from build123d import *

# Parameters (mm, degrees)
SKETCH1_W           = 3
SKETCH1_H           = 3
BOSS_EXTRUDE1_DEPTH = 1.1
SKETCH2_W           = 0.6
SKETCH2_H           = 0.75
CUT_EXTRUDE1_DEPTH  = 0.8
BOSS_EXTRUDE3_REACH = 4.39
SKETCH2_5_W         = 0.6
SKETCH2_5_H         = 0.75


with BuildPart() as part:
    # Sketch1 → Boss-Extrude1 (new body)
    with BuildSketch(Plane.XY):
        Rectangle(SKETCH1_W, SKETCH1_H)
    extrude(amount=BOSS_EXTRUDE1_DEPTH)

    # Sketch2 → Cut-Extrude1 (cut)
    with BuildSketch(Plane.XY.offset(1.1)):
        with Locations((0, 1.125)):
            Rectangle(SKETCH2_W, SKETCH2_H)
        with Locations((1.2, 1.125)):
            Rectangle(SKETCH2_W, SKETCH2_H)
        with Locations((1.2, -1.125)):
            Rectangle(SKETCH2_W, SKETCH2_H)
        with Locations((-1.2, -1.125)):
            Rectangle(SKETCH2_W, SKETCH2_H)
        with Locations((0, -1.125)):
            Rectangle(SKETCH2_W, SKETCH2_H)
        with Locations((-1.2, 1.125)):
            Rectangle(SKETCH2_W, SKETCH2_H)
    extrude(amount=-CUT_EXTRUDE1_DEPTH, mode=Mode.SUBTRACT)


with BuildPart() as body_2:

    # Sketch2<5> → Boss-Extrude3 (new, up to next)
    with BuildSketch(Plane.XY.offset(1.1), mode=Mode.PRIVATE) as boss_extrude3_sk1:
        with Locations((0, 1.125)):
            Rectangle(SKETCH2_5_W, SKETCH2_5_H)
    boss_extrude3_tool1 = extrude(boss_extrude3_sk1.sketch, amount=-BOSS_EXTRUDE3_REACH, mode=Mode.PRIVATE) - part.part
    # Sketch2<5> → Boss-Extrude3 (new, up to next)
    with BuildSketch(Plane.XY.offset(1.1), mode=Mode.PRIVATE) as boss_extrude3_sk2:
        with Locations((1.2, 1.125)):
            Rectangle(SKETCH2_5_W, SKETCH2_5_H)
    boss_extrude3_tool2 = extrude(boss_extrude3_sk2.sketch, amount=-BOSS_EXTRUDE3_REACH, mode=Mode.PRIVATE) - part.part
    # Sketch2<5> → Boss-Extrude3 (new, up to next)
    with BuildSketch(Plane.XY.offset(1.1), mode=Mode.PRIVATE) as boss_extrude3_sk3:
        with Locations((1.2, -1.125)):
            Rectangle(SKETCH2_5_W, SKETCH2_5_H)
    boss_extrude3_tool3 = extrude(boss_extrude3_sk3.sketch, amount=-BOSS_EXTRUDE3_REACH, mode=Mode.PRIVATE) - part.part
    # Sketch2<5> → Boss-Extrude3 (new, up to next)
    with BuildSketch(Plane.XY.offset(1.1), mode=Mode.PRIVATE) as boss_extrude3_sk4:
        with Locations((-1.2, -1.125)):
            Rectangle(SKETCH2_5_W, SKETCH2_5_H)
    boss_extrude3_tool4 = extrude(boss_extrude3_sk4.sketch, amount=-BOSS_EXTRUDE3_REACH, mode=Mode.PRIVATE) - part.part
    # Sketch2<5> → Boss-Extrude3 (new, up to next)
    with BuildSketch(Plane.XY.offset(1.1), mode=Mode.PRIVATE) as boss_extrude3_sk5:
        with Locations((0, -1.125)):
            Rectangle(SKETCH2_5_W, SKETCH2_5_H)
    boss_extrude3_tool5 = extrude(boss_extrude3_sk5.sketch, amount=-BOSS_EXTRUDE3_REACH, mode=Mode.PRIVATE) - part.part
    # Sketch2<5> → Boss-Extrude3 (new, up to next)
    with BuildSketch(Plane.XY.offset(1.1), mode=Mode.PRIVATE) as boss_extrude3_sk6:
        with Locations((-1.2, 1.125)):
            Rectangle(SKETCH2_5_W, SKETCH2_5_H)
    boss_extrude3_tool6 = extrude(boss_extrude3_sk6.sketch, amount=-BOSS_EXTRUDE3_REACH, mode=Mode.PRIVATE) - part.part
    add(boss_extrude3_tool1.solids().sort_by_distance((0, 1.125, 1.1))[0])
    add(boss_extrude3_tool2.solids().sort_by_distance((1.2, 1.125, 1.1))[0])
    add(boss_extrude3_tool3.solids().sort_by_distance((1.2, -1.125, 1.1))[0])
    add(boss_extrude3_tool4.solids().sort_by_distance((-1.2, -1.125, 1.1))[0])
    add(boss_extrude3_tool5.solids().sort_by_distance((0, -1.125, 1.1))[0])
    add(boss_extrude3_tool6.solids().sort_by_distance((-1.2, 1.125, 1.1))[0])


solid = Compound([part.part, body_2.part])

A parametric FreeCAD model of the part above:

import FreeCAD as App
import Part
import Sketcher

V = App.Vector

doc = App.newDocument("Part")
body = doc.addObject("PartDesign::Body", "Body")

# Sketch on XY plane
sketch1 = body.newObject("Sketcher::SketchObject", "Sketch")
sketch1.AttachmentSupport = (doc.getObject("XY_Plane"), [""])
sketch1.MapMode = "FlatFace"
sketch1.addGeometry(Part.LineSegment(V(-1.5, 1.5, 0), V(-1.5, -1.5, 0)), False)
sketch1.addGeometry(Part.LineSegment(V(-1.5, -1.5, 0), V(1.5, -1.5, 0)), False)
sketch1.addGeometry(Part.LineSegment(V(1.5, -1.5, 0), V(1.5, 1.5, 0)), False)
sketch1.addGeometry(Part.LineSegment(V(1.5, 1.5, 0), V(-1.5, 1.5, 0)), False)
sketch1.addConstraint(Sketcher.Constraint("Coincident", 0, 2, 1, 1))
sketch1.addConstraint(Sketcher.Constraint("Coincident", 1, 2, 2, 1))
sketch1.addConstraint(Sketcher.Constraint("Coincident", 2, 2, 3, 1))
sketch1.addConstraint(Sketcher.Constraint("Coincident", 3, 2, 0, 1))
sketch1.addConstraint(Sketcher.Constraint("Vertical", 0))
sketch1.addConstraint(Sketcher.Constraint("Horizontal", 1))
sketch1.addConstraint(Sketcher.Constraint("Vertical", 2))
sketch1.addConstraint(Sketcher.Constraint("Horizontal", 3))
sketch1.addConstraint(Sketcher.Constraint("Symmetric", 0, 2, 2, 2, -1, 1))
sketch1.addConstraint(Sketcher.Constraint("Equal", 3, 0))
sketch1.addConstraint(Sketcher.Constraint("DistanceX", 1, 1, 1, 2, 3.0))
pad1 = body.newObject("PartDesign::Pad", "Pad")
pad1.Profile = sketch1
pad1.Length = 1.1

# Sketch on XY plane
sketch2 = body.newObject("Sketcher::SketchObject", "Sketch001")
sketch2.AttachmentSupport = (doc.getObject("XY_Plane"), [""])
sketch2.MapMode = "FlatFace"
sketch2.AttachmentOffset = App.Placement(V(0, 0, 1.1), App.Rotation())
sketch2.addGeometry(Part.LineSegment(V(-0.3, 1.5, 0), V(-0.3, 0.8, 0)), False)
sketch2.addGeometry(Part.LineSegment(V(-0.3, 0.8, 0), V(0.3, 0.8, 0)), False)
sketch2.addGeometry(Part.LineSegment(V(0.3, 0.8, 0), V(0.3, 1.5, 0)), False)
sketch2.addGeometry(Part.LineSegment(V(0.3, 1.5, 0), V(-0.3, 1.5, 0)), False)
sketch2.addGeometry(Part.LineSegment(V(0.9, 1.5, 0), V(0.9, 0.8, 0)), False)
sketch2.addGeometry(Part.LineSegment(V(0.9, 0.8, 0), V(1.5, 0.8, 0)), False)
sketch2.addGeometry(Part.LineSegment(V(1.5, 0.8, 0), V(1.5, 1.5, 0)), False)
sketch2.addGeometry(Part.LineSegment(V(1.5, 1.5, 0), V(0.9, 1.5, 0)), False)
sketch2.addGeometry(Part.LineSegment(V(0.9, -0.8, 0), V(0.9, -1.5, 0)), False)
sketch2.addGeometry(Part.LineSegment(V(0.9, -1.5, 0), V(1.5, -1.5, 0)), False)
sketch2.addGeometry(Part.LineSegment(V(1.5, -1.5, 0), V(1.5, -0.8, 0)), False)
sketch2.addGeometry(Part.LineSegment(V(1.5, -0.8, 0), V(0.9, -0.8, 0)), False)
sketch2.addGeometry(Part.LineSegment(V(-1.5, -0.8, 0), V(-1.5, -1.5, 0)), False)
sketch2.addGeometry(Part.LineSegment(V(-1.5, -1.5, 0), V(-0.9, -1.5, 0)), False)
sketch2.addGeometry(Part.LineSegment(V(-0.9, -1.5, 0), V(-0.9, -0.8, 0)), False)
sketch2.addGeometry(Part.LineSegment(V(-0.9, -0.8, 0), V(-1.5, -0.8, 0)), False)
sketch2.addGeometry(Part.LineSegment(V(-0.3, -0.8, 0), V(-0.3, -1.5, 0)), False)
sketch2.addGeometry(Part.LineSegment(V(-0.3, -1.5, 0), V(0.3, -1.5, 0)), False)
sketch2.addGeometry(Part.LineSegment(V(0.3, -1.5, 0), V(0.3, -0.8, 0)), False)
sketch2.addGeometry(Part.LineSegment(V(0.3, -0.8, 0), V(-0.3, -0.8, 0)), False)
sketch2.addGeometry(Part.LineSegment(V(-1.5, 1.5, 0), V(-1.5, 0.8, 0)), False)
sketch2.addGeometry(Part.LineSegment(V(-1.5, 0.8, 0), V(-0.9, 0.8, 0)), False)
sketch2.addGeometry(Part.LineSegment(V(-0.9, 0.8, 0), V(-0.9, 1.5, 0)), False)
sketch2.addGeometry(Part.LineSegment(V(-0.9, 1.5, 0), V(-1.5, 1.5, 0)), False)
sketch2.addConstraint(Sketcher.Constraint("Coincident", 0, 2, 1, 1))
sketch2.addConstraint(Sketcher.Constraint("Coincident", 1, 2, 2, 1))
sketch2.addConstraint(Sketcher.Constraint("Coincident", 2, 2, 3, 1))
sketch2.addConstraint(Sketcher.Constraint("Coincident", 3, 2, 0, 1))
sketch2.addConstraint(Sketcher.Constraint("Coincident", 4, 2, 5, 1))
sketch2.addConstraint(Sketcher.Constraint("Coincident", 5, 2, 6, 1))
sketch2.addConstraint(Sketcher.Constraint("Coincident", 6, 2, 7, 1))
sketch2.addConstraint(Sketcher.Constraint("Coincident", 7, 2, 4, 1))
sketch2.addConstraint(Sketcher.Constraint("Coincident", 8, 2, 9, 1))
sketch2.addConstraint(Sketcher.Constraint("Coincident", 9, 2, 10, 1))
sketch2.addConstraint(Sketcher.Constraint("Coincident", 10, 2, 11, 1))
sketch2.addConstraint(Sketcher.Constraint("Coincident", 11, 2, 8, 1))
sketch2.addConstraint(Sketcher.Constraint("Coincident", 12, 2, 13, 1))
sketch2.addConstraint(Sketcher.Constraint("Coincident", 13, 2, 14, 1))
sketch2.addConstraint(Sketcher.Constraint("Coincident", 14, 2, 15, 1))
sketch2.addConstraint(Sketcher.Constraint("Coincident", 15, 2, 12, 1))
sketch2.addConstraint(Sketcher.Constraint("Coincident", 16, 2, 17, 1))
sketch2.addConstraint(Sketcher.Constraint("Coincident", 17, 2, 18, 1))
sketch2.addConstraint(Sketcher.Constraint("Coincident", 18, 2, 19, 1))
sketch2.addConstraint(Sketcher.Constraint("Coincident", 19, 2, 16, 1))
sketch2.addConstraint(Sketcher.Constraint("Coincident", 20, 2, 21, 1))
sketch2.addConstraint(Sketcher.Constraint("Coincident", 21, 2, 22, 1))
sketch2.addConstraint(Sketcher.Constraint("Coincident", 22, 2, 23, 1))
sketch2.addConstraint(Sketcher.Constraint("Coincident", 23, 2, 20, 1))
sketch2.addConstraint(Sketcher.Constraint("Vertical", 0))
sketch2.addConstraint(Sketcher.Constraint("Horizontal", 1))
sketch2.addConstraint(Sketcher.Constraint("Vertical", 2))
sketch2.addConstraint(Sketcher.Constraint("Horizontal", 3))
sketch2.addConstraint(Sketcher.Constraint("Vertical", 4))
sketch2.addConstraint(Sketcher.Constraint("Horizontal", 5))
sketch2.addConstraint(Sketcher.Constraint("Vertical", 6))
sketch2.addConstraint(Sketcher.Constraint("Horizontal", 7))
sketch2.addConstraint(Sketcher.Constraint("Vertical", 8))
sketch2.addConstraint(Sketcher.Constraint("Horizontal", 9))
sketch2.addConstraint(Sketcher.Constraint("Vertical", 10))
sketch2.addConstraint(Sketcher.Constraint("Horizontal", 11))
sketch2.addConstraint(Sketcher.Constraint("Vertical", 12))
sketch2.addConstraint(Sketcher.Constraint("Horizontal", 13))
sketch2.addConstraint(Sketcher.Constraint("Vertical", 14))
sketch2.addConstraint(Sketcher.Constraint("Horizontal", 15))
sketch2.addConstraint(Sketcher.Constraint("Vertical", 16))
sketch2.addConstraint(Sketcher.Constraint("Horizontal", 17))
sketch2.addConstraint(Sketcher.Constraint("Vertical", 18))
sketch2.addConstraint(Sketcher.Constraint("Horizontal", 19))
sketch2.addConstraint(Sketcher.Constraint("Vertical", 20))
sketch2.addConstraint(Sketcher.Constraint("Horizontal", 21))
sketch2.addConstraint(Sketcher.Constraint("Vertical", 22))
sketch2.addConstraint(Sketcher.Constraint("Horizontal", 23))
sketch2.addConstraint(Sketcher.Constraint("Symmetric", 6, 2, 12, 2, -1, 1))
sketch2.addConstraint(Sketcher.Constraint("Symmetric", 4, 2, 14, 2, -1, 1))
sketch2.addConstraint(Sketcher.Constraint("Symmetric", 2, 2, 16, 2, -1, 1))
sketch2.addConstraint(Sketcher.Constraint("Symmetric", 0, 2, 18, 2, -1, 1))
sketch2.addConstraint(Sketcher.Constraint("Symmetric", 10, 2, 20, 2, -1, 1))
sketch2.addConstraint(Sketcher.Constraint("Symmetric", 8, 2, 22, 2, -1, 1))
sketch2.addConstraint(Sketcher.Constraint("Symmetric", 9, 2, 12, 2, -2))
sketch2.addConstraint(Sketcher.Constraint("Symmetric", 11, 2, 14, 2, -2))
sketch2.addConstraint(Sketcher.Constraint("Horizontal", 1, 2, 4, 2))
sketch2.addConstraint(Sketcher.Constraint("Horizontal", 3, 2, 6, 2))
sketch2.addConstraint(Sketcher.Constraint("Vertical", 3, 2, 16, 2))
sketch2.addConstraint(Sketcher.Constraint("Equal", 3, 5))
sketch2.addConstraint(Sketcher.Constraint("DistanceX", 1, 1, 1, 2, 0.6))
sketch2.addConstraint(Sketcher.Constraint("DistanceY", 8, 2, 7, 2, 3.0))
sketch2.addConstraint(Sketcher.Constraint("DistanceX", 12, 2, 9, 2, 3.0))
sketch2.addConstraint(Sketcher.Constraint("DistanceY", 0, 2, 0, 1, 0.75))
pocket1 = body.newObject("PartDesign::Pocket", "Pocket")
pocket1.Profile = sketch2
pocket1.Length = 0.8
body2 = doc.addObject("PartDesign::Body", "Body001")
body2.AllowCompound = True

# Sketch on XY plane
sketch3 = body2.newObject("Sketcher::SketchObject", "Sketch002")
sketch3.AttachmentSupport = (doc.getObject("XY_Plane001"), [""])
sketch3.MapMode = "FlatFace"
sketch3.AttachmentOffset = App.Placement(V(0, 0, 1.1), App.Rotation())
sketch3.addGeometry(Part.LineSegment(V(-0.3, 1.5, 0), V(-0.3, 0.8, 0)), False)
sketch3.addGeometry(Part.LineSegment(V(-0.3, 0.8, 0), V(0.3, 0.8, 0)), False)
sketch3.addGeometry(Part.LineSegment(V(0.3, 0.8, 0), V(0.3, 1.5, 0)), False)
sketch3.addGeometry(Part.LineSegment(V(0.3, 1.5, 0), V(-0.3, 1.5, 0)), False)
sketch3.addConstraint(Sketcher.Constraint("Coincident", 0, 2, 1, 1))
sketch3.addConstraint(Sketcher.Constraint("Coincident", 1, 2, 2, 1))
sketch3.addConstraint(Sketcher.Constraint("Coincident", 2, 2, 3, 1))
sketch3.addConstraint(Sketcher.Constraint("Coincident", 3, 2, 0, 1))
sketch3.addConstraint(Sketcher.Constraint("Vertical", 0))
sketch3.addConstraint(Sketcher.Constraint("Horizontal", 1))
sketch3.addConstraint(Sketcher.Constraint("Vertical", 2))
sketch3.addConstraint(Sketcher.Constraint("Horizontal", 3))
sketch3.addConstraint(Sketcher.Constraint("DistanceX", 1, 1, 1, 2, 0.6))
sketch3.addConstraint(Sketcher.Constraint("DistanceY", 0, 2, 0, 1, 0.75))
sketch3.addConstraint(Sketcher.Constraint("DistanceX", 0, 2, -1, 1, 0.3))
sketch3.addConstraint(Sketcher.Constraint("DistanceY", -1, 1, 2, 2, 1.5))
pad2 = body2.newObject("PartDesign::Pad", "Pad001")
pad2.Profile = sketch3
pad2.Length = 0.8
pad2.Reversed = True

# Sketch on XY plane
sketch4 = body2.newObject("Sketcher::SketchObject", "Sketch003")
sketch4.AttachmentSupport = (doc.getObject("XY_Plane001"), [""])
sketch4.MapMode = "FlatFace"
sketch4.AttachmentOffset = App.Placement(V(0, 0, 1.1), App.Rotation())
sketch4.addGeometry(Part.LineSegment(V(0.9, 1.5, 0), V(0.9, 0.8, 0)), False)
sketch4.addGeometry(Part.LineSegment(V(0.9, 0.8, 0), V(1.5, 0.8, 0)), False)
sketch4.addGeometry(Part.LineSegment(V(1.5, 0.8, 0), V(1.5, 1.5, 0)), False)
sketch4.addGeometry(Part.LineSegment(V(1.5, 1.5, 0), V(0.9, 1.5, 0)), False)
sketch4.addConstraint(Sketcher.Constraint("Coincident", 0, 2, 1, 1))
sketch4.addConstraint(Sketcher.Constraint("Coincident", 1, 2, 2, 1))
sketch4.addConstraint(Sketcher.Constraint("Coincident", 2, 2, 3, 1))
sketch4.addConstraint(Sketcher.Constraint("Coincident", 3, 2, 0, 1))
sketch4.addConstraint(Sketcher.Constraint("Vertical", 0))
sketch4.addConstraint(Sketcher.Constraint("Horizontal", 1))
sketch4.addConstraint(Sketcher.Constraint("Vertical", 2))
sketch4.addConstraint(Sketcher.Constraint("Horizontal", 3))
sketch4.addConstraint(Sketcher.Constraint("DistanceX", 1, 1, 1, 2, 0.6))
sketch4.addConstraint(Sketcher.Constraint("DistanceY", 0, 2, 0, 1, 0.75))
sketch4.addConstraint(Sketcher.Constraint("DistanceX", -1, 1, 0, 2, 0.9))
sketch4.addConstraint(Sketcher.Constraint("DistanceY", -1, 1, 2, 2, 1.5))
pad3 = body2.newObject("PartDesign::Pad", "Pad002")
pad3.Profile = sketch4
pad3.Length = 0.8
pad3.Reversed = True

# Sketch on XY plane
sketch5 = body2.newObject("Sketcher::SketchObject", "Sketch004")
sketch5.AttachmentSupport = (doc.getObject("XY_Plane001"), [""])
sketch5.MapMode = "FlatFace"
sketch5.AttachmentOffset = App.Placement(V(0, 0, 1.1), App.Rotation())
sketch5.addGeometry(Part.LineSegment(V(0.9, -0.8, 0), V(0.9, -1.5, 0)), False)
sketch5.addGeometry(Part.LineSegment(V(0.9, -1.5, 0), V(1.5, -1.5, 0)), False)
sketch5.addGeometry(Part.LineSegment(V(1.5, -1.5, 0), V(1.5, -0.8, 0)), False)
sketch5.addGeometry(Part.LineSegment(V(1.5, -0.8, 0), V(0.9, -0.8, 0)), False)
sketch5.addConstraint(Sketcher.Constraint("Coincident", 0, 2, 1, 1))
sketch5.addConstraint(Sketcher.Constraint("Coincident", 1, 2, 2, 1))
sketch5.addConstraint(Sketcher.Constraint("Coincident", 2, 2, 3, 1))
sketch5.addConstraint(Sketcher.Constraint("Coincident", 3, 2, 0, 1))
sketch5.addConstraint(Sketcher.Constraint("Vertical", 0))
sketch5.addConstraint(Sketcher.Constraint("Horizontal", 1))
sketch5.addConstraint(Sketcher.Constraint("Vertical", 2))
sketch5.addConstraint(Sketcher.Constraint("Horizontal", 3))
sketch5.addConstraint(Sketcher.Constraint("DistanceX", 1, 1, 1, 2, 0.6))
sketch5.addConstraint(Sketcher.Constraint("DistanceY", 0, 2, 0, 1, 0.75))
sketch5.addConstraint(Sketcher.Constraint("DistanceX", -1, 1, 0, 2, 0.9))
sketch5.addConstraint(Sketcher.Constraint("DistanceY", 0, 2, -1, 1, 1.5))
pad4 = body2.newObject("PartDesign::Pad", "Pad003")
pad4.Profile = sketch5
pad4.Length = 0.8
pad4.Reversed = True

# Sketch on XY plane
sketch6 = body2.newObject("Sketcher::SketchObject", "Sketch005")
sketch6.AttachmentSupport = (doc.getObject("XY_Plane001"), [""])
sketch6.MapMode = "FlatFace"
sketch6.AttachmentOffset = App.Placement(V(0, 0, 1.1), App.Rotation())
sketch6.addGeometry(Part.LineSegment(V(-1.5, -0.8, 0), V(-1.5, -1.5, 0)), False)
sketch6.addGeometry(Part.LineSegment(V(-1.5, -1.5, 0), V(-0.9, -1.5, 0)), False)
sketch6.addGeometry(Part.LineSegment(V(-0.9, -1.5, 0), V(-0.9, -0.8, 0)), False)
sketch6.addGeometry(Part.LineSegment(V(-0.9, -0.8, 0), V(-1.5, -0.8, 0)), False)
sketch6.addConstraint(Sketcher.Constraint("Coincident", 0, 2, 1, 1))
sketch6.addConstraint(Sketcher.Constraint("Coincident", 1, 2, 2, 1))
sketch6.addConstraint(Sketcher.Constraint("Coincident", 2, 2, 3, 1))
sketch6.addConstraint(Sketcher.Constraint("Coincident", 3, 2, 0, 1))
sketch6.addConstraint(Sketcher.Constraint("Vertical", 0))
sketch6.addConstraint(Sketcher.Constraint("Horizontal", 1))
sketch6.addConstraint(Sketcher.Constraint("Vertical", 2))
sketch6.addConstraint(Sketcher.Constraint("Horizontal", 3))
sketch6.addConstraint(Sketcher.Constraint("DistanceX", 1, 1, 1, 2, 0.6))
sketch6.addConstraint(Sketcher.Constraint("DistanceY", 0, 2, 0, 1, 0.75))
sketch6.addConstraint(Sketcher.Constraint("DistanceX", 0, 2, -1, 1, 1.5))
sketch6.addConstraint(Sketcher.Constraint("DistanceY", 0, 2, -1, 1, 1.5))
pad5 = body2.newObject("PartDesign::Pad", "Pad004")
pad5.Profile = sketch6
pad5.Length = 0.8
pad5.Reversed = True

# Sketch on XY plane
sketch7 = body2.newObject("Sketcher::SketchObject", "Sketch006")
sketch7.AttachmentSupport = (doc.getObject("XY_Plane001"), [""])
sketch7.MapMode = "FlatFace"
sketch7.AttachmentOffset = App.Placement(V(0, 0, 1.1), App.Rotation())
sketch7.addGeometry(Part.LineSegment(V(-0.3, -0.8, 0), V(-0.3, -1.5, 0)), False)
sketch7.addGeometry(Part.LineSegment(V(-0.3, -1.5, 0), V(0.3, -1.5, 0)), False)
sketch7.addGeometry(Part.LineSegment(V(0.3, -1.5, 0), V(0.3, -0.8, 0)), False)
sketch7.addGeometry(Part.LineSegment(V(0.3, -0.8, 0), V(-0.3, -0.8, 0)), False)
sketch7.addConstraint(Sketcher.Constraint("Coincident", 0, 2, 1, 1))
sketch7.addConstraint(Sketcher.Constraint("Coincident", 1, 2, 2, 1))
sketch7.addConstraint(Sketcher.Constraint("Coincident", 2, 2, 3, 1))
sketch7.addConstraint(Sketcher.Constraint("Coincident", 3, 2, 0, 1))
sketch7.addConstraint(Sketcher.Constraint("Vertical", 0))
sketch7.addConstraint(Sketcher.Constraint("Horizontal", 1))
sketch7.addConstraint(Sketcher.Constraint("Vertical", 2))
sketch7.addConstraint(Sketcher.Constraint("Horizontal", 3))
sketch7.addConstraint(Sketcher.Constraint("DistanceX", 1, 1, 1, 2, 0.6))
sketch7.addConstraint(Sketcher.Constraint("DistanceY", 0, 2, 0, 1, 0.75))
sketch7.addConstraint(Sketcher.Constraint("DistanceX", 0, 2, -1, 1, 0.3))
sketch7.addConstraint(Sketcher.Constraint("DistanceY", 0, 2, -1, 1, 1.5))
pad6 = body2.newObject("PartDesign::Pad", "Pad005")
pad6.Profile = sketch7
pad6.Length = 0.8
pad6.Reversed = True

# Sketch on XY plane
sketch8 = body2.newObject("Sketcher::SketchObject", "Sketch007")
sketch8.AttachmentSupport = (doc.getObject("XY_Plane001"), [""])
sketch8.MapMode = "FlatFace"
sketch8.AttachmentOffset = App.Placement(V(0, 0, 1.1), App.Rotation())
sketch8.addGeometry(Part.LineSegment(V(-1.5, 1.5, 0), V(-1.5, 0.8, 0)), False)
sketch8.addGeometry(Part.LineSegment(V(-1.5, 0.8, 0), V(-0.9, 0.8, 0)), False)
sketch8.addGeometry(Part.LineSegment(V(-0.9, 0.8, 0), V(-0.9, 1.5, 0)), False)
sketch8.addGeometry(Part.LineSegment(V(-0.9, 1.5, 0), V(-1.5, 1.5, 0)), False)
sketch8.addConstraint(Sketcher.Constraint("Coincident", 0, 2, 1, 1))
sketch8.addConstraint(Sketcher.Constraint("Coincident", 1, 2, 2, 1))
sketch8.addConstraint(Sketcher.Constraint("Coincident", 2, 2, 3, 1))
sketch8.addConstraint(Sketcher.Constraint("Coincident", 3, 2, 0, 1))
sketch8.addConstraint(Sketcher.Constraint("Vertical", 0))
sketch8.addConstraint(Sketcher.Constraint("Horizontal", 1))
sketch8.addConstraint(Sketcher.Constraint("Vertical", 2))
sketch8.addConstraint(Sketcher.Constraint("Horizontal", 3))
sketch8.addConstraint(Sketcher.Constraint("DistanceX", 1, 1, 1, 2, 0.6))
sketch8.addConstraint(Sketcher.Constraint("DistanceY", 0, 2, 0, 1, 0.75))
sketch8.addConstraint(Sketcher.Constraint("DistanceX", 0, 2, -1, 1, 1.5))
sketch8.addConstraint(Sketcher.Constraint("DistanceY", -1, 1, 2, 2, 1.5))
pad7 = body2.newObject("PartDesign::Pad", "Pad006")
pad7.Profile = sketch8
pad7.Length = 0.8
pad7.Reversed = True

doc.recompute()
